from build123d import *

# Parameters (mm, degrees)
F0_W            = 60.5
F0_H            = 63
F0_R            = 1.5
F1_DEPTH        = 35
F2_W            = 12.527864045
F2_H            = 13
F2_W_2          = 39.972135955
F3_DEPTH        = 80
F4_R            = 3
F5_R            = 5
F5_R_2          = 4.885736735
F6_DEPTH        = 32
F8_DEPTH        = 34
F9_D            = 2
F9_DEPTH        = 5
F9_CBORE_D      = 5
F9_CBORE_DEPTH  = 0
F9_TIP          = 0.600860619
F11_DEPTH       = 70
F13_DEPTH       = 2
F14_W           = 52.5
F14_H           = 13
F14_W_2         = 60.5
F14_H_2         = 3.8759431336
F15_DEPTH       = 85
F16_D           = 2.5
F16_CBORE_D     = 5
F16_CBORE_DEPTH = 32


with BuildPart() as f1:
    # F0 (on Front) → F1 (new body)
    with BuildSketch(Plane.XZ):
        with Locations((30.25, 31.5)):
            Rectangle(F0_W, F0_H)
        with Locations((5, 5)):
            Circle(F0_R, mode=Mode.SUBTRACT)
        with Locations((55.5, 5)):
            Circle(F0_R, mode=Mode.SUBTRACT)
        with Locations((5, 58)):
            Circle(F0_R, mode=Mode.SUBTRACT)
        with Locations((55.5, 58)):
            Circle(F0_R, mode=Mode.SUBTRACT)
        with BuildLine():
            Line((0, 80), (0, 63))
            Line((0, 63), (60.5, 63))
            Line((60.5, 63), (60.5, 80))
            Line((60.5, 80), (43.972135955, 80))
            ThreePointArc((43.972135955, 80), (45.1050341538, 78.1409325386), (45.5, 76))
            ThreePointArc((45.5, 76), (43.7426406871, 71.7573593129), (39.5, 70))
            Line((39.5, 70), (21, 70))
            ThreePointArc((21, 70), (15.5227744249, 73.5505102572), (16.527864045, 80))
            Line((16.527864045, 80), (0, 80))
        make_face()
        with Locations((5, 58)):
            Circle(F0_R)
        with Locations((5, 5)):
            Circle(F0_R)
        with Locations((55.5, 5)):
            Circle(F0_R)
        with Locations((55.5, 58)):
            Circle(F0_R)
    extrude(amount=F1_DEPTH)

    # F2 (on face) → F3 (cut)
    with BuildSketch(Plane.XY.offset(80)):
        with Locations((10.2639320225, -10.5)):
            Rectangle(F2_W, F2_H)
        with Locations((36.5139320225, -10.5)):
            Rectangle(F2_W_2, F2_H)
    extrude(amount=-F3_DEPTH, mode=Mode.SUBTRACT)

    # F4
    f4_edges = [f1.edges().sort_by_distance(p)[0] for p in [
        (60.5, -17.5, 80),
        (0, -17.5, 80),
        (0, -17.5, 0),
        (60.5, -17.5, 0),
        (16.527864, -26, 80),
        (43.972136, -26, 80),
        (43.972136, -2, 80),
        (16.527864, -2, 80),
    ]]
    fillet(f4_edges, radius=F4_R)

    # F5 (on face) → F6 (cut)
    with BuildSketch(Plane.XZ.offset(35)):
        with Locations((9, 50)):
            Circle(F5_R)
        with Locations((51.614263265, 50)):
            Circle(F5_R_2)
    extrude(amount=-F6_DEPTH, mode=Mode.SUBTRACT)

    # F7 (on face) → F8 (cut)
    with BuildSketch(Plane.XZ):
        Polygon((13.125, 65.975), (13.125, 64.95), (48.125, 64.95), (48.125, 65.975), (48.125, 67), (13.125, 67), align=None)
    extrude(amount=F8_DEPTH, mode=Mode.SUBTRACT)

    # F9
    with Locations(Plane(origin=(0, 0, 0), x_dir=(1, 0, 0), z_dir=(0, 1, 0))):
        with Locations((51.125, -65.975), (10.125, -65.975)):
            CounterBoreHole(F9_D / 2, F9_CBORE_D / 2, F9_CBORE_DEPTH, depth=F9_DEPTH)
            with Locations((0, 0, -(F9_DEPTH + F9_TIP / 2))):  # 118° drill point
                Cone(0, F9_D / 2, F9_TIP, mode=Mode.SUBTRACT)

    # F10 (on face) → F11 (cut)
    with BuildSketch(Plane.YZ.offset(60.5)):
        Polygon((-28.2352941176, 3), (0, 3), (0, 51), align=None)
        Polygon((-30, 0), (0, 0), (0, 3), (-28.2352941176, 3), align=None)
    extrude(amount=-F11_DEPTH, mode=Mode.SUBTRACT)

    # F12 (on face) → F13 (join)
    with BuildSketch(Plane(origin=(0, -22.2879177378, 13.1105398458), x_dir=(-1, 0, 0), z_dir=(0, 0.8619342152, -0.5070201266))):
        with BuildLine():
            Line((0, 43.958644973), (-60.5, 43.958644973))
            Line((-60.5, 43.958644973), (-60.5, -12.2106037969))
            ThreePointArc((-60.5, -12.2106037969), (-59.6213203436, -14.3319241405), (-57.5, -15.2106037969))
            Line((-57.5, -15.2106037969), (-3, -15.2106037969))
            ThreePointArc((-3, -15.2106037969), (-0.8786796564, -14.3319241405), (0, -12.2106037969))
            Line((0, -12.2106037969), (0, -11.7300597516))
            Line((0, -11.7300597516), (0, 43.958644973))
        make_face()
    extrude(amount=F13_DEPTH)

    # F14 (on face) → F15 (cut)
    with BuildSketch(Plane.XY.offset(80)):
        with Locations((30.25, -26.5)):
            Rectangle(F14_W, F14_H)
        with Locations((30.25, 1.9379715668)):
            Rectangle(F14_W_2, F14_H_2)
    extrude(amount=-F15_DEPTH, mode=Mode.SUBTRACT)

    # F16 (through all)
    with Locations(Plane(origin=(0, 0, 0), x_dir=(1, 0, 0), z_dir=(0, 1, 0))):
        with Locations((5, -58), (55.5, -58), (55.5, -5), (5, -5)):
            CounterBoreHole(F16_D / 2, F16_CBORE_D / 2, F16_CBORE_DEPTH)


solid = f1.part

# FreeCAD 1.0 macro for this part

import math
import FreeCAD as App
import Part
import Sketcher


def edges_at(feature, points):
    """Names of the edges that pass closest to the given points."""
    edges = feature.Shape.Edges
    near = lambda p: min(range(len(edges)), key=lambda i: edges[i].distToShape(Part.Vertex(*p))[0])
    return sorted({f"Edge{near(p) + 1}" for p in points})

doc = App.newDocument("Part")
body = doc.addObject("PartDesign::Body", "Body")

# Sketch on XZ plane
sketch1 = body.newObject("Sketcher::SketchObject", "Sketch")
sketch1.AttachmentSupport = (doc.getObject("XZ_Plane"), [""])
sketch1.MapMode = "FlatFace"
sketch1.addGeometry(Part.LineSegment(App.Vector(0, 0, 0), App.Vector(60.5, 0, 0)), False)
sketch1.addGeometry(Part.LineSegment(App.Vector(60.5, 0, 0), App.Vector(60.5, 80, 0)), False)
sketch1.addGeometry(Part.LineSegment(App.Vector(60.5, 80, 0), App.Vector(44, 80, 0)), False)
sketch1.addGeometry(Part.ArcOfCircle(Part.Circle(App.Vector(39.5, 76, 0), App.Vector(0, 0, 1), 6), math.radians(0), math.radians(42)), False)
sketch1.addGeometry(Part.ArcOfCircle(Part.Circle(App.Vector(39.5, 76, 0), App.Vector(0, 0, 1), 6), math.radians(-90), math.radians(0)), False)
sketch1.addGeometry(Part.LineSegment(App.Vector(39.5, 70, 0), App.Vector(21, 70, 0)), False)
sketch1.addGeometry(Part.ArcOfCircle(Part.Circle(App.Vector(21, 76, 0), App.Vector(0, 0, 1), 6), math.radians(138), math.radians(270)), False)
sketch1.addGeometry(Part.LineSegment(App.Vector(16.5, 80, 0), App.Vector(0, 80, 0)), False)
sketch1.addGeometry(Part.LineSegment(App.Vector(0, 80, 0), App.Vector(0, 0, 0)), False)
sketch1.addConstraint(Sketcher.Constraint("Coincident", 0, 2, 1, 1))
sketch1.addConstraint(Sketcher.Constraint("Coincident", 1, 2, 2, 1))
sketch1.addConstraint(Sketcher.Constraint("Coincident", 2, 2, 3, 2))
sketch1.addConstraint(Sketcher.Constraint("Tangent", 3, 1, 4, 2))
sketch1.addConstraint(Sketcher.Constraint("Tangent", 4, 1, 5, 1))
sketch1.addConstraint(Sketcher.Constraint("Tangent", 5, 2, 6, 2))
sketch1.addConstraint(Sketcher.Constraint("Coincident", 6, 1, 7, 1))
sketch1.addConstraint(Sketcher.Constraint("Coincident", 7, 2, 8, 1))
sketch1.addConstraint(Sketcher.Constraint("Coincident", 8, 2, 0, 1))
sketch1.addConstraint(Sketcher.Constraint("Horizontal", 0))
sketch1.addConstraint(Sketcher.Constraint("Vertical", 1))
sketch1.addConstraint(Sketcher.Constraint("Horizontal", 2))
sketch1.addConstraint(Sketcher.Constraint("Horizontal", 5))
sketch1.addConstraint(Sketcher.Constraint("Horizontal", 7))
sketch1.addConstraint(Sketcher.Constraint("Vertical", 8))
sketch1.addConstraint(Sketcher.Constraint("Coincident", 8, 2, -1, 1))
sketch1.addConstraint(Sketcher.Constraint("Equal", 3, 4))
sketch1.addConstraint(Sketcher.Constraint("Equal", 4, 6))
sketch1.addConstraint(Sketcher.Constraint("Horizontal", 6, 3, 3, 1))
sketch1.addConstraint(Sketcher.Constraint("Horizontal", 2, 2, 6, 1))
sketch1.addConstraint(Sketcher.Constraint("Equal", 2, 7))
sketch1.addConstraint(Sketcher.Constraint("Radius", 3, 6.0))
sketch1.addConstraint(Sketcher.Constraint("DistanceY", 1, 1, 1, 2, 80.0))
sketch1.addConstraint(Sketcher.Constraint("DistanceX", 0, 1, 0, 2, 60.5))
sketch1.addConstraint(Sketcher.Constraint("DistanceX", 5, 2, 5, 1, 18.5))
sketch1.addConstraint(Sketcher.Constraint("DistanceY", -1, 1, 3, 3, 76.0))
pad1 = body.newObject("PartDesign::Pad", "Pad")
pad1.Profile = sketch1
pad1.Length = 35

# Sketch on XY plane
sketch2 = body.newObject("Sketcher::SketchObject", "Sketch001")
sketch2.AttachmentSupport = (doc.getObject("XY_Plane"), [""])
sketch2.MapMode = "FlatFace"
sketch2.AttachmentOffset = App.Placement(App.Vector(0, 0, 80), App.Rotation())
sketch2.addGeometry(Part.LineSegment(App.Vector(4, -4, 0), App.Vector(4, -17, 0)), False)
sketch2.addGeometry(Part.LineSegment(App.Vector(4, -17, 0), App.Vector(56, -17, 0)), False)
sketch2.addGeometry(Part.LineSegment(App.Vector(56, -17, 0), App.Vector(56, -4, 0)), False)
sketch2.addGeometry(Part.LineSegment(App.Vector(56, -4, 0), App.Vector(4, -4, 0)), False)
sketch2.addConstraint(Sketcher.Constraint("Coincident", 0, 2, 1, 1))
sketch2.addConstraint(Sketcher.Constraint("Coincident", 1, 2, 2, 1))
sketch2.addConstraint(Sketcher.Constraint("Coincident", 2, 2, 3, 1))
sketch2.addConstraint(Sketcher.Constraint("Coincident", 3, 2, 0, 1))
sketch2.addConstraint(Sketcher.Constraint("Vertical", 0))
sketch2.addConstraint(Sketcher.Constraint("Horizontal", 1))
sketch2.addConstraint(Sketcher.Constraint("Vertical", 2))
sketch2.addConstraint(Sketcher.Constraint("Horizontal", 3))
sketch2.addConstraint(Sketcher.Constraint("DistanceY", 0, 2, 0, 1, 13.0))
sketch2.addConstraint(Sketcher.Constraint("DistanceX", 1, 1, 1, 2, 52.5))
sketch2.addConstraint(Sketcher.Constraint("DistanceX", -1, 1, 0, 2, 4.0))
sketch2.addConstraint(Sketcher.Constraint("DistanceY", 0, 2, -1, 1, 17.0))
pocket1 = body.newObject("PartDesign::Pocket", "Pocket")
pocket1.Profile = sketch2
pocket1.Length = 80
doc.recompute()

fillet = body.newObject("PartDesign::Fillet", "Fillet")
fillet.Base = (pocket1, edges_at(pocket1, [
    (60.5, -17.5, 80),
    (0, -17.5, 80),
    (0, -17.5, 0),
    (60.5, -17.5, 0),
    (16.528, -26, 80),
    (43.972, -26, 80),
    (43.972, -2, 80),
    (16.528, -2, 80),
]))
fillet.Radius = 3

# Sketch on XZ plane
sketch3 = body.newObject("Sketcher::SketchObject", "Sketch002")
sketch3.AttachmentSupport = (doc.getObject("XZ_Plane"), [""])
sketch3.MapMode = "FlatFace"
sketch3.AttachmentOffset = App.Placement(App.Vector(0, 0, 35), App.Rotation())
sketch3.addGeometry(Part.Circle(App.Vector(9, 50, 0), App.Vector(0, 0, 1), 5), False)
sketch3.addGeometry(Part.Circle(App.Vector(51.6, 50, 0), App.Vector(0, 0, 1), 4.9), False)
sketch3.addConstraint(Sketcher.Constraint("Horizontal", 0, 3, 1, 3))
sketch3.addConstraint(Sketcher.Constraint("Diameter", 0, 10.0))
sketch3.addConstraint(Sketcher.Constraint("DistanceX", -1, 1, 0, 3, 9.0))
sketch3.addConstraint(Sketcher.Constraint("DistanceY", -1, 1, 0, 3, 50.0))
sketch3.addConstraint(Sketcher.Constraint("Diameter", 1, 9.771473))
sketch3.addConstraint(Sketcher.Constraint("DistanceX", -1, 1, 1, 3, 51.614263))
pocket2 = body.newObject("PartDesign::Pocket", "Pocket001")
pocket2.Profile = sketch3
pocket2.Length = 32

# Sketch on XZ plane
sketch4 = body.newObject("Sketcher::SketchObject", "Sketch003")
sketch4.AttachmentSupport = (doc.getObject("XZ_Plane"), [""])
sketch4.MapMode = "FlatFace"
sketch4.addGeometry(Part.LineSegment(App.Vector(13.1, 65, 0), App.Vector(48.1, 65, 0)), False)
sketch4.addGeometry(Part.LineSegment(App.Vector(48.1, 65, 0), App.Vector(48.1, 67, 0)), False)
sketch4.addGeometry(Part.LineSegment(App.Vector(48.1, 67, 0), App.Vector(13.1, 67, 0)), False)
sketch4.addGeometry(Part.LineSegment(App.Vector(13.1, 67, 0), App.Vector(13.1, 65, 0)), False)
sketch4.addConstraint(Sketcher.Constraint("Coincident", 0, 2, 1, 1))
sketch4.addConstraint(Sketcher.Constraint("Coincident", 1, 2, 2, 1))
sketch4.addConstraint(Sketcher.Constraint("Coincident", 2, 2, 3, 1))
sketch4.addConstraint(Sketcher.Constraint("Coincident", 3, 2, 0, 1))
sketch4.addConstraint(Sketcher.Constraint("Horizontal", 0))
sketch4.addConstraint(Sketcher.Constraint("Vertical", 1))
sketch4.addConstraint(Sketcher.Constraint("Horizontal", 2))
sketch4.addConstraint(Sketcher.Constraint("Vertical", 3))
sketch4.addConstraint(Sketcher.Constraint("DistanceX", 0, 1, 0, 2, 35.0))
sketch4.addConstraint(Sketcher.Constraint("DistanceY", -1, 1, 1, 2, 67.0))
sketch4.addConstraint(Sketcher.Constraint("DistanceY", 1, 1, 1, 2, 2.05))
sketch4.addConstraint(Sketcher.Constraint("DistanceX", -1, 1, 0, 2, 48.125))
pocket3 = body.newObject("PartDesign::Pocket", "Pocket002")
pocket3.Profile = sketch4
pocket3.Length = 34
pocket3.Reversed = True

# Sketch on XZ plane
sketch5 = body.newObject("Sketcher::SketchObject", "Sketch004")
sketch5.AttachmentSupport = (doc.getObject("XZ_Plane"), [""])
sketch5.MapMode = "FlatFace"
sketch5.addGeometry(Part.Circle(App.Vector(51.1, 66, 0), App.Vector(0, 0, 1), 1), False)
sketch5.addGeometry(Part.Circle(App.Vector(10.1, 66, 0), App.Vector(0, 0, 1), 1), False)
sketch5.addConstraint(Sketcher.Constraint("Equal", 0, 1))
sketch5.addConstraint(Sketcher.Constraint("Horizontal", 0, 3, 1, 3))
sketch5.addConstraint(Sketcher.Constraint("Diameter", 0, 2.0))
sketch5.addConstraint(Sketcher.Constraint("DistanceX", 1, 3, 0, 3, 41.0))
sketch5.addConstraint(Sketcher.Constraint("DistanceX", -1, 1, 0, 3, 51.125))
sketch5.addConstraint(Sketcher.Constraint("DistanceY", -1, 1, 0, 3, 65.975))
doc.recompute()
hole = body.newObject("PartDesign::Hole", "Hole")
hole.Profile = sketch5
hole.ThreadType = "None"
hole.Diameter = 2
hole.DepthType = "Dimension"
hole.Depth = 5
hole.DrillPoint = "Angled"
hole.DrillPointAngle = 118
hole.HoleCutType = "Counterbore"
hole.HoleCutDiameter = 5
hole.HoleCutDepth = 0
hole.Reversed = True

# Sketch on YZ plane
sketch6 = body.newObject("Sketcher::SketchObject", "Sketch005")
sketch6.AttachmentSupport = (doc.getObject("YZ_Plane"), [""])
sketch6.MapMode = "FlatFace"
sketch6.AttachmentOffset = App.Placement(App.Vector(0, 0, 60.5), App.Rotation())
sketch6.addGeometry(Part.LineSegment(App.Vector(0, 51, 0), App.Vector(-28.2, 3, 0)), False)
sketch6.addGeometry(Part.LineSegment(App.Vector(-28.2, 3, 0), App.Vector(-30, 0, 0)), False)
sketch6.addGeometry(Part.LineSegment(App.Vector(-30, 0, 0), App.Vector(0, 0, 0)), False)
sketch6.addGeometry(Part.LineSegment(App.Vector(0, 0, 0), App.Vector(0, 51, 0)), False)
sketch6.addConstraint(Sketcher.Constraint("Coincident", 0, 2, 1, 1))
sketch6.addConstraint(Sketcher.Constraint("Coincident", 1, 2, 2, 1))
sketch6.addConstraint(Sketcher.Constraint("Coincident", 2, 2, 3, 1))
sketch6.addConstraint(Sketcher.Constraint("Coincident", 3, 2, 0, 1))
sketch6.addConstraint(Sketcher.Constraint("Horizontal", 2))
sketch6.addConstraint(Sketcher.Constraint("Vertical", 3))
sketch6.addConstraint(Sketcher.Constraint("Coincident", 2, 2, -1, 1))
sketch6.addConstraint(Sketcher.Constraint("Parallel", 0, 1))
sketch6.addConstraint(Sketcher.Constraint("DistanceX", 2, 1, 2, 2, 30.0))
sketch6.addConstraint(Sketcher.Constraint("DistanceY", 3, 1, 3, 2, 51.0))
sketch6.addConstraint(Sketcher.Constraint("DistanceY", -1, 1, 0, 2, 3.0))
pocket4 = body.newObject("PartDesign::Pocket", "Pocket003")
pocket4.Profile = sketch6
pocket4.Length = 70

# Sketch on an angled plane
sketch7 = body.newObject("Sketcher::SketchObject", "Sketch006")
sketch7.Placement = App.Placement(App.Vector(0, -22.287918, 13.11054), App.Rotation(App.Vector(-1, 0, 0), App.Vector(0, 0.507020127, 0.861934215), App.Vector(0, 0.861934215, -0.507020127), "ZXY"))
sketch7.addGeometry(Part.LineSegment(App.Vector(0, 44, 0), App.Vector(-60.5, 44, 0)), False)
sketch7.addGeometry(Part.LineSegment(App.Vector(-60.5, 44, 0), App.Vector(-60.5, -12.2, 0)), False)
sketch7.addGeometry(Part.ArcOfCircle(Part.Circle(App.Vector(-57.5, -12.2, 0), App.Vector(0, 0, 1), 3), math.radians(180), math.radians(270)), False)
sketch7.addGeometry(Part.LineSegment(App.Vector(-57.5, -15.2, 0), App.Vector(-3, -15.2, 0)), False)
sketch7.addGeometry(Part.ArcOfCircle(Part.Circle(App.Vector(-3, -12.2, 0), App.Vector(0, 0, 1), 3), math.radians(-90), math.radians(0)), False)
sketch7.addGeometry(Part.LineSegment(App.Vector(0, -12.2, 0), App.Vector(0, 44, 0)), False)
sketch7.addConstraint(Sketcher.Constraint("Coincident", 0, 2, 1, 1))
sketch7.addConstraint(Sketcher.Constraint("Tangent", 1, 2, 2, 1))
sketch7.addConstraint(Sketcher.Constraint("Tangent", 2, 2, 3, 1))
sketch7.addConstraint(Sketcher.Constraint("Tangent", 3, 2, 4, 1))
sketch7.addConstraint(Sketcher.Constraint("Tangent", 4, 2, 5, 1))
sketch7.addConstraint(Sketcher.Constraint("Coincident", 5, 2, 0, 1))
sketch7.addConstraint(Sketcher.Constraint("Horizontal", 0))
sketch7.addConstraint(Sketcher.Constraint("Vertical", 1))
sketch7.addConstraint(Sketcher.Constraint("Horizontal", 3))
sketch7.addConstraint(Sketcher.Constraint("Vertical", 5))
sketch7.addConstraint(Sketcher.Constraint("Equal", 2, 4))
sketch7.addConstraint(Sketcher.Constraint("PointOnObject", 4, 2, -2))
sketch7.addConstraint(Sketcher.Constraint("Radius", 2, 3.0))
sketch7.addConstraint(Sketcher.Constraint("DistanceX", 0, 2, 0, 1, 60.5))
sketch7.addConstraint(Sketcher.Constraint("DistanceY", 1, 2, 1, 1, 56.169249))
sketch7.addConstraint(Sketcher.Constraint("DistanceY", 2, 3, -1, 1, 12.210604))
pad2 = body.newObject("PartDesign::Pad", "Pad001")
pad2.Profile = sketch7
pad2.Length = 2

# Sketch on XY plane
sketch8 = body.newObject("Sketcher::SketchObject", "Sketch007")
sketch8.AttachmentSupport = (doc.getObject("XY_Plane"), [""])
sketch8.MapMode = "FlatFace"
sketch8.AttachmentOffset = App.Placement(App.Vector(0, 0, 80), App.Rotation())
sketch8.addGeometry(Part.LineSegment(App.Vector(4, -20, 0), App.Vector(4, -33, 0)), False)
sketch8.addGeometry(Part.LineSegment(App.Vector(4, -33, 0), App.Vector(56.5, -33, 0)), False)
sketch8.addGeometry(Part.LineSegment(App.Vector(56.5, -33, 0), App.Vector(56.5, -20, 0)), False)
sketch8.addGeometry(Part.LineSegment(App.Vector(56.5, -20, 0), App.Vector(4, -20, 0)), False)
sketch8.addGeometry(Part.LineSegment(App.Vector(0, 3.9, 0), App.Vector(0, 0, 0)), False)
sketch8.addGeometry(Part.LineSegment(App.Vector(0, 0, 0), App.Vector(60.5, 0, 0)), False)
sketch8.addGeometry(Part.LineSegment(App.Vector(60.5, 0, 0), App.Vector(60.5, 3.9, 0)), False)
sketch8.addGeometry(Part.LineSegment(App.Vector(60.5, 3.9, 0), App.Vector(0, 3.9, 0)), False)
sketch8.addConstraint(Sketcher.Constraint("Coincident", 0, 2, 1, 1))
sketch8.addConstraint(Sketcher.Constraint("Coincident", 1, 2, 2, 1))
sketch8.addConstraint(Sketcher.Constraint("Coincident", 2, 2, 3, 1))
sketch8.addConstraint(Sketcher.Constraint("Coincident", 3, 2, 0, 1))
sketch8.addConstraint(Sketcher.Constraint("Coincident", 4, 2, 5, 1))
sketch8.addConstraint(Sketcher.Constraint("Coincident", 5, 2, 6, 1))
sketch8.addConstraint(Sketcher.Constraint("Coincident", 6, 2, 7, 1))
sketch8.addConstraint(Sketcher.Constraint("Coincident", 7, 2, 4, 1))
sketch8.addConstraint(Sketcher.Constraint("Vertical", 0))
sketch8.addConstraint(Sketcher.Constraint("Horizontal", 1))
sketch8.addConstraint(Sketcher.Constraint("Vertical", 2))
sketch8.addConstraint(Sketcher.Constraint("Horizontal", 3))
sketch8.addConstraint(Sketcher.Constraint("Vertical", 4))
sketch8.addConstraint(Sketcher.Constraint("Horizontal", 5))
sketch8.addConstraint(Sketcher.Constraint("Vertical", 6))
sketch8.addConstraint(Sketcher.Constraint("Horizontal", 7))
sketch8.addConstraint(Sketcher.Constraint("Coincident", 4, 2, -1, 1))
sketch8.addConstraint(Sketcher.Constraint("DistanceY", 0, 2, 0, 1, 13.0))
sketch8.addConstraint(Sketcher.Constraint("DistanceX", 1, 1, 1, 2, 52.5))
sketch8.addConstraint(Sketcher.Constraint("DistanceX", 5, 1, 5, 2, 60.5))
sketch8.addConstraint(Sketcher.Constraint("DistanceX", -1, 1, 0, 2, 4.0))
sketch8.addConstraint(Sketcher.Constraint("DistanceY", 0, 2, -1, 1, 33.0))
sketch8.addConstraint(Sketcher.Constraint("DistanceY", 4, 2, 4, 1, 3.875943))
pocket5 = body.newObject("PartDesign::Pocket", "Pocket004")
pocket5.Profile = sketch8
pocket5.Length = 85

# Sketch on XZ plane
sketch9 = body.newObject("Sketcher::SketchObject", "Sketch008")
sketch9.AttachmentSupport = (doc.getObject("XZ_Plane"), [""])
sketch9.MapMode = "FlatFace"
sketch9.addGeometry(Part.Circle(App.Vector(5, 58, 0), App.Vector(0, 0, 1), 1.2), False)
sketch9.addGeometry(Part.Circle(App.Vector(55.5, 58, 0), App.Vector(0, 0, 1), 1.2), False)
sketch9.addGeometry(Part.Circle(App.Vector(55.5, 5, 0), App.Vector(0, 0, 1), 1.2), False)
sketch9.addGeometry(Part.Circle(App.Vector(5, 5, 0), App.Vector(0, 0, 1), 1.2), False)
sketch9.addConstraint(Sketcher.Constraint("Equal", 0, 1))
sketch9.addConstraint(Sketcher.Constraint("Equal", 1, 2))
sketch9.addConstraint(Sketcher.Constraint("Equal", 2, 3))
sketch9.addConstraint(Sketcher.Constraint("Horizontal", 0, 3, 1, 3))
sketch9.addConstraint(Sketcher.Constraint("Horizontal", 2, 3, 3, 3))
sketch9.addConstraint(Sketcher.Constraint("Vertical", 1, 3, 2, 3))
sketch9.addConstraint(Sketcher.Constraint("Vertical", 0, 3, 3, 3))
sketch9.addConstraint(Sketcher.Constraint("Diameter", 0, 2.5))
sketch9.addConstraint(Sketcher.Constraint("DistanceX", -1, 1, 0, 3, 5.0))
sketch9.addConstraint(Sketcher.Constraint("DistanceY", -1, 1, 0, 3, 58.0))
sketch9.addConstraint(Sketcher.Constraint("DistanceY", -1, 1, 2, 3, 5.0))
sketch9.addConstraint(Sketcher.Constraint("DistanceX", -1, 1, 1, 3, 55.5))
doc.recompute()
hole2 = body.newObject("PartDesign::Hole", "Hole001")
hole2.Profile = sketch9
hole2.ThreadType = "None"
hole2.Diameter = 2.5
hole2.DepthType = "ThroughAll"
hole2.HoleCutType = "Counterbore"
hole2.HoleCutDiameter = 5
hole2.HoleCutDepth = 32
hole2.Reversed = True

doc.recompute()
